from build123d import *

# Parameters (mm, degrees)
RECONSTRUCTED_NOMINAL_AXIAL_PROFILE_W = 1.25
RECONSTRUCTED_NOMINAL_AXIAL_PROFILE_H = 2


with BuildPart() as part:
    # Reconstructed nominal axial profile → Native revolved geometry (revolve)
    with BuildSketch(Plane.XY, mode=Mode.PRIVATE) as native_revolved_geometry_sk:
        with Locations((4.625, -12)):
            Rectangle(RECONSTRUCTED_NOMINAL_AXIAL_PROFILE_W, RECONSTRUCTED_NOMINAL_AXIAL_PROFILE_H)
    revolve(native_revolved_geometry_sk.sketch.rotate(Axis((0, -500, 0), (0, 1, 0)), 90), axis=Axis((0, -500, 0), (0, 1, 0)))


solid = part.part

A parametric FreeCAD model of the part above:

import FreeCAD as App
import Part
import Sketcher
Q = App.Units.Quantity


def add_polygon(sketch, points):
    """Adds a closed chain of lines whose ends are joined by coincident constraints."""
    first, n = sketch.GeometryCount, len(points)
    for a, b in zip(points, points[1:] + points[:1]):
        sketch.addGeometry(Part.LineSegment(App.Vector(*a, 0), App.Vector(*b, 0)), False)
    for i in range(n):
        sketch.addConstraint(Sketcher.Constraint("Coincident", first + i, 2, first + (i + 1) % n, 1))

doc = App.newDocument("Part")
body = doc.addObject("PartDesign::Body", "Body")

sketch1 = doc.addObject("Sketcher::SketchObject", "Sketch")
body.addObject(sketch1)
sketch1.AttachmentSupport = (doc.XY_Plane, [""])
sketch1.MapMode = "FlatFace"
add_polygon(sketch1, [(4, -11), (4, -13), (5.2, -13), (5.2, -11)])
sketch1.addConstraint([
    Sketcher.Constraint("Vertical", 0),
    Sketcher.Constraint("Horizontal", 1),
    Sketcher.Constraint("Vertical", 2),
    Sketcher.Constraint("Horizontal", 3),
    Sketcher.Constraint("DistanceY", 0, 2, 0, 1, Q("2 mm")),
    Sketcher.Constraint("DistanceX", -1, 1, 0, 2, Q("4 mm")),
    Sketcher.Constraint("DistanceY", 0, 2, -1, 1, Q("13 mm")),
    Sketcher.Constraint("DistanceX", 1, 1, 1, 2, Q("1.25 mm")),
])
revolution = doc.addObject("PartDesign::Revolution", "Revolution")
body.addObject(revolution)
revolution.Profile = sketch1
revolution.ReferenceAxis = (sketch1, ["V_Axis"])
revolution.Angle = 360

doc.recompute()
